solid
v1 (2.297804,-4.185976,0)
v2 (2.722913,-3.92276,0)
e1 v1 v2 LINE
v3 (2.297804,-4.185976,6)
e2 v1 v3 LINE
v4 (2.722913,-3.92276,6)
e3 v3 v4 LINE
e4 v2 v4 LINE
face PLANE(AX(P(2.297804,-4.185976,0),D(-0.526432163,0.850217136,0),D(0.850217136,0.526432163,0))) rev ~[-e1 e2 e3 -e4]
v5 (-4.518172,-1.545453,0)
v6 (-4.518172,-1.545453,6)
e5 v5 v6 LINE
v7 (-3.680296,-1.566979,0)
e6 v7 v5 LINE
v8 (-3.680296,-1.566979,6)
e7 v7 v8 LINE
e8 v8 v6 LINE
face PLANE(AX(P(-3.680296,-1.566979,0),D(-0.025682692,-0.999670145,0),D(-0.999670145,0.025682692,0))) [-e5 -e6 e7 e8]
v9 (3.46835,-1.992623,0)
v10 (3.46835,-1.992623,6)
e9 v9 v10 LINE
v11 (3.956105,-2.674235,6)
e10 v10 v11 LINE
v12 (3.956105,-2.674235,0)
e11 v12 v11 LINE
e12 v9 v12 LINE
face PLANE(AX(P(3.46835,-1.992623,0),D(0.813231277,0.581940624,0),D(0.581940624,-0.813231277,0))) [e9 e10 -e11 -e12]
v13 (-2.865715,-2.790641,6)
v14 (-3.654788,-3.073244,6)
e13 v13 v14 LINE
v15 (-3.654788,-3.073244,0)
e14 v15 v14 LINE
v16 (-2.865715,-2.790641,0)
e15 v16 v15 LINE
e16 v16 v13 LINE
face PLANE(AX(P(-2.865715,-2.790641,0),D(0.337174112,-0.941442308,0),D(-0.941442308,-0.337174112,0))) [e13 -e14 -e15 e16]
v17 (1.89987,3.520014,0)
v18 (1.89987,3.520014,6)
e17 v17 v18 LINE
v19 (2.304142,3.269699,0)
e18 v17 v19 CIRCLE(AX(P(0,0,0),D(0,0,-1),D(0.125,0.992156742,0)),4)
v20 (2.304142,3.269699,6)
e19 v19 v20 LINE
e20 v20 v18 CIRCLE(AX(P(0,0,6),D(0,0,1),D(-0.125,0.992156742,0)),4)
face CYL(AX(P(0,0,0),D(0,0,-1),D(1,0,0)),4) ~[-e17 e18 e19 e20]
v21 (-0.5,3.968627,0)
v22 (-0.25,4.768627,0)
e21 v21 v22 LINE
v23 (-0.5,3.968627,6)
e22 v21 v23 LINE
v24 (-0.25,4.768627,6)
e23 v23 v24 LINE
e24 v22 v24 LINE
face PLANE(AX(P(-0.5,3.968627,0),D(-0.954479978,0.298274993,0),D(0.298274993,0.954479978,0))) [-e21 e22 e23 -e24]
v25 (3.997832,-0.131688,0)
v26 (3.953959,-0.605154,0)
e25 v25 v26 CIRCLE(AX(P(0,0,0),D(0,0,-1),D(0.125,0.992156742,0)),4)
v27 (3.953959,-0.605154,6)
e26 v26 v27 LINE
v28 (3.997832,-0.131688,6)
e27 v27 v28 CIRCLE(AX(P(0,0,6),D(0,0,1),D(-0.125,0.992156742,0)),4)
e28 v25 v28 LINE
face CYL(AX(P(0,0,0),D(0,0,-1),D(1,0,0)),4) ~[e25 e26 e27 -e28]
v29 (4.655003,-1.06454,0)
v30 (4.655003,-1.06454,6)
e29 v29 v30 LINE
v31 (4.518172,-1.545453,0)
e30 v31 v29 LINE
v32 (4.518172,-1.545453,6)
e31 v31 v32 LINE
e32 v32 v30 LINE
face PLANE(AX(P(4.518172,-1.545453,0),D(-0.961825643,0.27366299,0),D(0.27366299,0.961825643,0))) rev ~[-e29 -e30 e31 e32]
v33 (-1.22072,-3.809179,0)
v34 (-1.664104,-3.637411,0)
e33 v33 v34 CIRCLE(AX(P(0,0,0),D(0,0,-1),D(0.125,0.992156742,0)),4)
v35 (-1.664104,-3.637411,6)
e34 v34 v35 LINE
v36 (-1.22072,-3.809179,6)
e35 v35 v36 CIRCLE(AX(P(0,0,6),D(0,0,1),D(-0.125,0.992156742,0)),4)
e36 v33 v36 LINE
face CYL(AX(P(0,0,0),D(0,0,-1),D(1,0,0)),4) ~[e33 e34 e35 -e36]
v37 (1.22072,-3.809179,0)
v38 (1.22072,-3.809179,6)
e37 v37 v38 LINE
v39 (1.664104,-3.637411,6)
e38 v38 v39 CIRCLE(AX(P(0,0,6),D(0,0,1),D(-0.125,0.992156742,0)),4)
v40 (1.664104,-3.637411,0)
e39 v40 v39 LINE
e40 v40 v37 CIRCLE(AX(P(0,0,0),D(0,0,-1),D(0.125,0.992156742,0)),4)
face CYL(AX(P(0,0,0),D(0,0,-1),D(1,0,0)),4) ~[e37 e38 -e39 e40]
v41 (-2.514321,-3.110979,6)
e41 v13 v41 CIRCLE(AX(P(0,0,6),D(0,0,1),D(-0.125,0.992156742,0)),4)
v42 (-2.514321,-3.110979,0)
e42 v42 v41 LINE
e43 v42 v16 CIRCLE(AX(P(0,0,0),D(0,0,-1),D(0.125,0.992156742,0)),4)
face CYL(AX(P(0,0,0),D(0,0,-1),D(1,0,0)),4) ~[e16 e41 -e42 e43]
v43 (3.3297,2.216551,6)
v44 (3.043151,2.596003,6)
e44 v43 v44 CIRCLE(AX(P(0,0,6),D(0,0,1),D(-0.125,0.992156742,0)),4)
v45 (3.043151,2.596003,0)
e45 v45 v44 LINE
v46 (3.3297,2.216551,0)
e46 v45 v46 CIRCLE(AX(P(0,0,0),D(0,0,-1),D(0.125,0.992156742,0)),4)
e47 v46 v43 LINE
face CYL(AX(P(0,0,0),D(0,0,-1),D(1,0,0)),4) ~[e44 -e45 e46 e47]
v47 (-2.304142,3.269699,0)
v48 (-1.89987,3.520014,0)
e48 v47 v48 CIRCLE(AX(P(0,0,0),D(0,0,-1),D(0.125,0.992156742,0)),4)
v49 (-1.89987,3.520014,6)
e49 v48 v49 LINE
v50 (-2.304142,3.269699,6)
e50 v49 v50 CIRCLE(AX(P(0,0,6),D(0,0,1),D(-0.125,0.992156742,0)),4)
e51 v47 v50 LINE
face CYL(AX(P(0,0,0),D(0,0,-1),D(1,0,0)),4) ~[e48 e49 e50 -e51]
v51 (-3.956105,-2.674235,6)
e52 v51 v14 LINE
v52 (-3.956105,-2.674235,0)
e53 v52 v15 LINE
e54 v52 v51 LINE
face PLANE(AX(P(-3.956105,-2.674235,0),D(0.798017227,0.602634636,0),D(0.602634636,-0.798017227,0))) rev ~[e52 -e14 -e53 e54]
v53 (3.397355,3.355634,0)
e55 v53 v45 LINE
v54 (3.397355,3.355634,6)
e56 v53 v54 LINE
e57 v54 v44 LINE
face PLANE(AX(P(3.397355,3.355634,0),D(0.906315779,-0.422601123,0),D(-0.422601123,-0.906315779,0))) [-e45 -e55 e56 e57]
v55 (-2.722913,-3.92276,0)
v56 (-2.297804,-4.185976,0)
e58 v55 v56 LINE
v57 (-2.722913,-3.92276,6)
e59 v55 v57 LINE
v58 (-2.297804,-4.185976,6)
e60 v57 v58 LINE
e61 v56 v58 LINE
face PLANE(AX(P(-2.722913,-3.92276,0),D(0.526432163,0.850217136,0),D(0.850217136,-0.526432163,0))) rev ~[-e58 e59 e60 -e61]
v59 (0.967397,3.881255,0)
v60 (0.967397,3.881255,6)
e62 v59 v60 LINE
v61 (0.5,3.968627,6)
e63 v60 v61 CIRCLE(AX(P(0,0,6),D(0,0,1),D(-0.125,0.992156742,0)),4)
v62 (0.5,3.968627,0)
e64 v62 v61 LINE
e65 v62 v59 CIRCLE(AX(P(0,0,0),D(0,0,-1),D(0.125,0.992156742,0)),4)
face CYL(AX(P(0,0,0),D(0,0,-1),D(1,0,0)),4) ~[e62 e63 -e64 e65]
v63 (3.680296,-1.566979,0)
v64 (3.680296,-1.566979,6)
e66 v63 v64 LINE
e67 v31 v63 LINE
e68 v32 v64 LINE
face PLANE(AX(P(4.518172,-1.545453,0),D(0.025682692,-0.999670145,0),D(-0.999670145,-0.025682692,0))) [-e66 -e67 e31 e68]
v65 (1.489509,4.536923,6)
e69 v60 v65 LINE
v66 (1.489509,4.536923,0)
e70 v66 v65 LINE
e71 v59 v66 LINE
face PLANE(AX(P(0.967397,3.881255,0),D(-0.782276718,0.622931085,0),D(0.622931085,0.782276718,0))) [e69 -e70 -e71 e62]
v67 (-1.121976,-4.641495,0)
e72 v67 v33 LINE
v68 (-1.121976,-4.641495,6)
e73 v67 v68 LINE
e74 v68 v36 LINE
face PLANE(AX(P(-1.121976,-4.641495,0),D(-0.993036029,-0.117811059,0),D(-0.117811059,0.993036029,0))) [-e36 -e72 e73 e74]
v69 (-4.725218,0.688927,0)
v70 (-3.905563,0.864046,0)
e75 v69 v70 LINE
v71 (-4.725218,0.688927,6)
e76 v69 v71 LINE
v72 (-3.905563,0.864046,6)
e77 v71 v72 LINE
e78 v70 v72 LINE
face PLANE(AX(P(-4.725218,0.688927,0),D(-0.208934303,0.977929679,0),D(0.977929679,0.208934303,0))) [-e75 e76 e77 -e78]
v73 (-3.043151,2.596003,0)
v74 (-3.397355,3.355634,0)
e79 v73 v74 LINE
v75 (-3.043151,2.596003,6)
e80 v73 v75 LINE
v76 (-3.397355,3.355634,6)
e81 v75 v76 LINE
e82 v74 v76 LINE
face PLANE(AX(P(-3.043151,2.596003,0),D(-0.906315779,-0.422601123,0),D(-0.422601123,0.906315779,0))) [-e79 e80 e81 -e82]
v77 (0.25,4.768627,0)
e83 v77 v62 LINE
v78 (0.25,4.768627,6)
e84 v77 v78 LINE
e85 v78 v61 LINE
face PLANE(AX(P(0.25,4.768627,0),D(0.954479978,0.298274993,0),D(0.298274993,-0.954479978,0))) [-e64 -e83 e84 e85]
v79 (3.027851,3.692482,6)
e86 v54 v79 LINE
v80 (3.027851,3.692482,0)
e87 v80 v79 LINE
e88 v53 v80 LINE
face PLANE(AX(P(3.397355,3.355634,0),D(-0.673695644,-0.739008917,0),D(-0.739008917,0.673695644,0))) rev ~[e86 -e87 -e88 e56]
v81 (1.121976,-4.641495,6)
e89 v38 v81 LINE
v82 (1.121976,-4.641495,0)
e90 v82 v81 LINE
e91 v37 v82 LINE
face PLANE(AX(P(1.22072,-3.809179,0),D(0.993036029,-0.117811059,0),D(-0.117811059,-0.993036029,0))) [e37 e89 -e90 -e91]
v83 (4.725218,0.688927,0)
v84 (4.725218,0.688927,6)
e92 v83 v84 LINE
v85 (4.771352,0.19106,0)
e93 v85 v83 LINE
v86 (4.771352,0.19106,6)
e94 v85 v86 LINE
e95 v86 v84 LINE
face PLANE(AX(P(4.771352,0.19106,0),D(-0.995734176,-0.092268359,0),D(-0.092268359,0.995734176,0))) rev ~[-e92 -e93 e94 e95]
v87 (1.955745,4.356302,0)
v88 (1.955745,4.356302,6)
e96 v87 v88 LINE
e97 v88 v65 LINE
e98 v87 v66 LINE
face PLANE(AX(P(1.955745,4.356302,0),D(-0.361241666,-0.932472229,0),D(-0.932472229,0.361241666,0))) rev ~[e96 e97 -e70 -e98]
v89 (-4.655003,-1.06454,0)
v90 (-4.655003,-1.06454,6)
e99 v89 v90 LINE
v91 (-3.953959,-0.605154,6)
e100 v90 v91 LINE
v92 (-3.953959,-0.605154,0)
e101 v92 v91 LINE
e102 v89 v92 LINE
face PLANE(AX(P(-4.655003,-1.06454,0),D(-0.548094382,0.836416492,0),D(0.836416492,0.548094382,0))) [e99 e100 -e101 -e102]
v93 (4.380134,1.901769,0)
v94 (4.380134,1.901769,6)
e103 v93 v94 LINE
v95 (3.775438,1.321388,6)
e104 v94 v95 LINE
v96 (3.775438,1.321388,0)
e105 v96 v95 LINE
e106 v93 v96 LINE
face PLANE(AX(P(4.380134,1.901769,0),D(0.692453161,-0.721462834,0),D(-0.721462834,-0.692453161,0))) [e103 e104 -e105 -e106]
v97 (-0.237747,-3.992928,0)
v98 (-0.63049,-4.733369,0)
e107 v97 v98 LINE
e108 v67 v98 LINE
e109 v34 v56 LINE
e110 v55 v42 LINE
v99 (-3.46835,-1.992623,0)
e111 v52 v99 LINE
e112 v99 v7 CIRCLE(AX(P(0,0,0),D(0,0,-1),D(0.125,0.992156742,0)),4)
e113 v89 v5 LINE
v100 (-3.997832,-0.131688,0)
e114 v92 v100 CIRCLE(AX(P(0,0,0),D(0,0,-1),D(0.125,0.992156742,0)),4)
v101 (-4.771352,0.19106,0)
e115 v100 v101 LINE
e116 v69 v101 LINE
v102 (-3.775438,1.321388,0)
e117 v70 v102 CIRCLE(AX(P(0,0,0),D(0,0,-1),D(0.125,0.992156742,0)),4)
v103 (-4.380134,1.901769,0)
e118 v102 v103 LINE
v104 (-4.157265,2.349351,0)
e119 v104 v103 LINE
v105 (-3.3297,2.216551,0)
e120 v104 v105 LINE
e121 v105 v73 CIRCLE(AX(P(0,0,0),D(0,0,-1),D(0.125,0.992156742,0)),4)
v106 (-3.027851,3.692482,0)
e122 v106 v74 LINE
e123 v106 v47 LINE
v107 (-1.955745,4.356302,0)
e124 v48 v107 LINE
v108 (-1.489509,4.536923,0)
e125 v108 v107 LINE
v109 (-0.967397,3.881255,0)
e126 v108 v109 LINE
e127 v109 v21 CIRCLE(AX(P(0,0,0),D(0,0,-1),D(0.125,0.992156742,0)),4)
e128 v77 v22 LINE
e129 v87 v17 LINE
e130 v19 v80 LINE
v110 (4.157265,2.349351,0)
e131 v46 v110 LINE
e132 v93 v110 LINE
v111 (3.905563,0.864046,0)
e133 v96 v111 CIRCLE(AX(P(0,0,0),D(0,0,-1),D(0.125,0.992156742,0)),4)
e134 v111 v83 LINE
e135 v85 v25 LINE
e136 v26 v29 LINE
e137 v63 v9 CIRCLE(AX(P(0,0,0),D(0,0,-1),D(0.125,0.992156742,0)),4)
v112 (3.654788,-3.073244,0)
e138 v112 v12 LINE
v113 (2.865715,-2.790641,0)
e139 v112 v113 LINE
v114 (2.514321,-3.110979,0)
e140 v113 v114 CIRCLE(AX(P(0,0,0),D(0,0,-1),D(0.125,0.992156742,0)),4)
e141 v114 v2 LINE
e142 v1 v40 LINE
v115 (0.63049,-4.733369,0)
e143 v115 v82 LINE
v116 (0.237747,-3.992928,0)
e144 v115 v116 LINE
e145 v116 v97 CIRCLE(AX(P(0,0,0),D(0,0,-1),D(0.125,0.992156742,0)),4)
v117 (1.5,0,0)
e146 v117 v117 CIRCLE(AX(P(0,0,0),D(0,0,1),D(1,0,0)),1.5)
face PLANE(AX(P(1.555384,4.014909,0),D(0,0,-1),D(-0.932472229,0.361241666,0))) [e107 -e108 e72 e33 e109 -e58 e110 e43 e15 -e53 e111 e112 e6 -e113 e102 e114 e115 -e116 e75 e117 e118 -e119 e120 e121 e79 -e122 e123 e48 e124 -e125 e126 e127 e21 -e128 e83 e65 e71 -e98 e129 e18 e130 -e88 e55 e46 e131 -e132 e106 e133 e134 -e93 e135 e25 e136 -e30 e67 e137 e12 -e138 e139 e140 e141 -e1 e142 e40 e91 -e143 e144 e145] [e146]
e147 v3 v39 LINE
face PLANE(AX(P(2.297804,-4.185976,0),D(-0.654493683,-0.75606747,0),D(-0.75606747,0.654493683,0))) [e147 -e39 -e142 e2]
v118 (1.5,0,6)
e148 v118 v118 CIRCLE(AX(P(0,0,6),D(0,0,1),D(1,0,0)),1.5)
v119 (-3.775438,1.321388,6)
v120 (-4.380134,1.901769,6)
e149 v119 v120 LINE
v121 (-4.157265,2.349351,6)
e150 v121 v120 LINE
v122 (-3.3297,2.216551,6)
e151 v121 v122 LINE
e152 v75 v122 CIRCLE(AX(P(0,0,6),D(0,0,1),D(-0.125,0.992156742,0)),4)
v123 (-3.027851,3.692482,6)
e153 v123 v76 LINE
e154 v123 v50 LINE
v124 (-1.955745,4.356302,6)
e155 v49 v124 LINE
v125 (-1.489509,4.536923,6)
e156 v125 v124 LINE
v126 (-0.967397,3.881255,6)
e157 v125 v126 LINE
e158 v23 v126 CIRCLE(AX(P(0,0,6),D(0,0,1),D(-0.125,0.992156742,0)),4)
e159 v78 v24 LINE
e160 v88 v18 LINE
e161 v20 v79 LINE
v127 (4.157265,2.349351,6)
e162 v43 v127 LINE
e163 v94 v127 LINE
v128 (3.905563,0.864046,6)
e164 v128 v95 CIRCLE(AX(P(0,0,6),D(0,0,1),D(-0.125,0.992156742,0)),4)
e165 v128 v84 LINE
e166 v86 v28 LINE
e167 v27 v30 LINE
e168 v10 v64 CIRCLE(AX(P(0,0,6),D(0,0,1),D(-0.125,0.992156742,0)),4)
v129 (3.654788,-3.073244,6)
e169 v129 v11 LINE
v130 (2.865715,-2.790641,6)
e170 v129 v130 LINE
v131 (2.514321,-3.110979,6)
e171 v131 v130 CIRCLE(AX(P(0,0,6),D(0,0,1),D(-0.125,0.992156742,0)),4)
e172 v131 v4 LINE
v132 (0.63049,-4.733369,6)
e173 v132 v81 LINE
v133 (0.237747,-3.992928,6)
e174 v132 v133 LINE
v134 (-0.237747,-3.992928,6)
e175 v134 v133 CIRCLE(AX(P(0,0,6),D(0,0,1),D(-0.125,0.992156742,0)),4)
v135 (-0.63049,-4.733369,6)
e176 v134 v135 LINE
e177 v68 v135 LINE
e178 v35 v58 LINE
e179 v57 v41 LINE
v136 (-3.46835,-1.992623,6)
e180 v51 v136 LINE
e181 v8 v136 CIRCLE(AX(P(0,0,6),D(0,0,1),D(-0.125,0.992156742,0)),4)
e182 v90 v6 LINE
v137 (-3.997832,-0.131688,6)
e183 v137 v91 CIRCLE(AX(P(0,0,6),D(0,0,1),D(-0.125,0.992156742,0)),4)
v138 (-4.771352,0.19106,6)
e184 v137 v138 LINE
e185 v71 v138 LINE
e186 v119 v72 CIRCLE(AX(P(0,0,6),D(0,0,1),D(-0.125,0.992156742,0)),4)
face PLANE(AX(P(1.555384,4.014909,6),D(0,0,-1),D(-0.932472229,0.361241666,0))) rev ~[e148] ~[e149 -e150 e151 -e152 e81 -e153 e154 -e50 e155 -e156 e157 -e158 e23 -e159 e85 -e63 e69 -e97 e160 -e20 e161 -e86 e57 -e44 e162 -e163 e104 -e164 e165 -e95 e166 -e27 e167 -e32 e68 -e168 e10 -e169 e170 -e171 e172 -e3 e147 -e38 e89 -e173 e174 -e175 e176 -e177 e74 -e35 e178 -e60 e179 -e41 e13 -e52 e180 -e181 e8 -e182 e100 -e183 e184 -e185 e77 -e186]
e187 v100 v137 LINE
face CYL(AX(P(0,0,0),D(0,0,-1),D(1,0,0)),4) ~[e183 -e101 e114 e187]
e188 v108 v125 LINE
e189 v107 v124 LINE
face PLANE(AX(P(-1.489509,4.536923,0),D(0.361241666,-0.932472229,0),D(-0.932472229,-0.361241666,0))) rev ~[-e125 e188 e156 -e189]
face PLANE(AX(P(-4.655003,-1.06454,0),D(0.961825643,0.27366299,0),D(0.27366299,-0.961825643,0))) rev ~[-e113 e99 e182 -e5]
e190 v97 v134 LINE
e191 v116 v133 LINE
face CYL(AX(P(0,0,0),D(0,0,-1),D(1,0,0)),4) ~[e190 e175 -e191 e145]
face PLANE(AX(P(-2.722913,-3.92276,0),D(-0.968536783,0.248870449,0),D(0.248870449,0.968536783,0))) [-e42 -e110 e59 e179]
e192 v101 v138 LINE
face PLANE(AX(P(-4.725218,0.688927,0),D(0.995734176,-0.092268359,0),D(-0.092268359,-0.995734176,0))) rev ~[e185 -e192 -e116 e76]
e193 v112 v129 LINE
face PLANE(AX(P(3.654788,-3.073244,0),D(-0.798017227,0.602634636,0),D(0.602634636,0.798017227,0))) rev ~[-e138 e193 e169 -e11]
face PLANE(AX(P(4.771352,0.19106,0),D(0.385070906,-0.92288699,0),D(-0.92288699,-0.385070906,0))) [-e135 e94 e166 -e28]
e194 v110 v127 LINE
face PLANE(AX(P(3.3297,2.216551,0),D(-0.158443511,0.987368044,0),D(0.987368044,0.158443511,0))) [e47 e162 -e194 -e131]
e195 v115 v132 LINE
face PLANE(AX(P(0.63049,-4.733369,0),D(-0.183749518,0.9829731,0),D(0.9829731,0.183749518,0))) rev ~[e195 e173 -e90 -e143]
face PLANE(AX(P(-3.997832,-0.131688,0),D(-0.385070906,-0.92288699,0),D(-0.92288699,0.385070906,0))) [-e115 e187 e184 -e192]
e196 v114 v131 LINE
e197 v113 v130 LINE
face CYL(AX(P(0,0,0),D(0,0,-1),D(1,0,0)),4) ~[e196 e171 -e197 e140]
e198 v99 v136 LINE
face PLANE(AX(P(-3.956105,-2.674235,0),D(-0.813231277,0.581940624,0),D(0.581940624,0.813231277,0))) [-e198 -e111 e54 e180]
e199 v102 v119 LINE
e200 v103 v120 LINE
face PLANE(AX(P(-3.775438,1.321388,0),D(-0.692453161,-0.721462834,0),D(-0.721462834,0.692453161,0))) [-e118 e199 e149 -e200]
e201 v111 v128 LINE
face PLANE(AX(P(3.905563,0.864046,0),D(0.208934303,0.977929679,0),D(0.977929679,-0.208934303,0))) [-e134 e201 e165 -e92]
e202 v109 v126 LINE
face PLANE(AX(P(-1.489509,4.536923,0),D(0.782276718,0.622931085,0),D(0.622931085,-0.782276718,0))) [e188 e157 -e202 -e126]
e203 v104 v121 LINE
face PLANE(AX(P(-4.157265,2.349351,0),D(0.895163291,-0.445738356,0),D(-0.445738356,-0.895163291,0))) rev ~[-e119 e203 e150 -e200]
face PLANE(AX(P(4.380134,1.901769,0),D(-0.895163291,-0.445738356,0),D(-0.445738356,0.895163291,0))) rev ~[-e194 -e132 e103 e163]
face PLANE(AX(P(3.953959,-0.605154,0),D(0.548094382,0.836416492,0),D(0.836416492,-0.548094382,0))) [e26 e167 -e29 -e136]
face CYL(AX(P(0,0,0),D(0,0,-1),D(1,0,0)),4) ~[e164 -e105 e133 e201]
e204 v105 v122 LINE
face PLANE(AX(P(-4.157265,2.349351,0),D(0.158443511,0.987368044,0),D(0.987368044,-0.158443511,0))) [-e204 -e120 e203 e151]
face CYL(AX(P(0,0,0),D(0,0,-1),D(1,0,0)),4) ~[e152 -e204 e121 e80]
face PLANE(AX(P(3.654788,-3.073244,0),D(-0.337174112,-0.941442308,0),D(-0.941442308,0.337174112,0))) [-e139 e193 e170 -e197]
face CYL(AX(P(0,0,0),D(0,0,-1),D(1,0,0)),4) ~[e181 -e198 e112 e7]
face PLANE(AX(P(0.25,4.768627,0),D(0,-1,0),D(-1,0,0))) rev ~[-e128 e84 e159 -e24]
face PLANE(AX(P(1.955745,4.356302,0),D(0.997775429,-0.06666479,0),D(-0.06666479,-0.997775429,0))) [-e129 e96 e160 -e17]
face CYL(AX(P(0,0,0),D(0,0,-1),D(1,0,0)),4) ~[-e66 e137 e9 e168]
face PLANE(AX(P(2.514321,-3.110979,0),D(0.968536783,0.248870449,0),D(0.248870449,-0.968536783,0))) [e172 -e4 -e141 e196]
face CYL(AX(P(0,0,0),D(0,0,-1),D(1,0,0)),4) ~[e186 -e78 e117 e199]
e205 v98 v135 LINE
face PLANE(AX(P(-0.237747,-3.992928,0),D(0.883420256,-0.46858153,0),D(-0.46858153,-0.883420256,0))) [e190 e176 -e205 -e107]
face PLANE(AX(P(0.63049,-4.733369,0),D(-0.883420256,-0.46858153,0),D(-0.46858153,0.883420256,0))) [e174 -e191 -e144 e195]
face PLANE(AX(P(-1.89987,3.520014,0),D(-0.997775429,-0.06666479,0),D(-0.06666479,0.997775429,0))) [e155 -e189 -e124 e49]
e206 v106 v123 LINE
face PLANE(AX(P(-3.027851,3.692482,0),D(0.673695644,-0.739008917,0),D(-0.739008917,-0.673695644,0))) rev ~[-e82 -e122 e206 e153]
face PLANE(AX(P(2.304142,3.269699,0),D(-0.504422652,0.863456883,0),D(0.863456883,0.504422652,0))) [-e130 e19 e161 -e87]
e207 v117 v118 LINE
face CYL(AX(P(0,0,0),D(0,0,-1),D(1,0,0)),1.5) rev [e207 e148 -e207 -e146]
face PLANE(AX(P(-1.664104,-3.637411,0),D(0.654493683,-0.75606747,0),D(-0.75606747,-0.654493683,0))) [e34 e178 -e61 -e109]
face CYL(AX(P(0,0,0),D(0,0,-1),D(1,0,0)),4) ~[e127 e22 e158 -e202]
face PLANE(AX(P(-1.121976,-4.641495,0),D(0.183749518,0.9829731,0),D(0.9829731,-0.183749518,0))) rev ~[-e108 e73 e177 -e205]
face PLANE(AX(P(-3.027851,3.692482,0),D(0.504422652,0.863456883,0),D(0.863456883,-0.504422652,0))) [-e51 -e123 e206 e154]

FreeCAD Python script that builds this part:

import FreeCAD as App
import Part
import Sketcher

V = App.Vector
Q = App.Units.Quantity


def add_polygon(sketch, points):
    """Adds a closed chain of lines whose ends are joined by coincident constraints."""
    first, n = sketch.GeometryCount, len(points)
    for a, b in zip(points, points[1:] + points[:1]):
        sketch.addGeometry(Part.LineSegment(App.Vector(*a, 0), App.Vector(*b, 0)), False)
    for i in range(n):
        sketch.addConstraint(Sketcher.Constraint("Coincident", first + i, 2, first + (i + 1) % n, 1))

doc = App.newDocument("Part")
body = doc.addObject("PartDesign::Body", "Body")

sketch1 = body.newObject("Sketcher::SketchObject", "Sketch")
sketch1.AttachmentSupport = (doc.getObject("XY_Plane"), [""])
sketch1.MapMode = "FlatFace"
sketch1.addGeometry(Part.Circle(V(0, 0, 0), V(0, 0, 1), 4), False)
sketch1.addConstraint([
    Sketcher.Constraint("Coincident", 0, 3, -1, 1),
    Sketcher.Constraint("Diameter", 0, Q("8 mm")),
])
pad1 = body.newObject("PartDesign::Pad", "Pad")
pad1.Profile = sketch1
pad1.Length = 6

sketch2 = body.newObject("Sketcher::SketchObject", "Sketch001")
sketch2.AttachmentSupport = (doc.getObject("XY_Plane"), [""])
sketch2.MapMode = "FlatFace"
add_polygon(sketch2, [(0.25, 4.768627), (-0.25, 4.768627), (-0.5, 3.968627), (0.5, 3.968627)])
sketch2.addConstraint([
    Sketcher.Constraint("Horizontal", 0),
    Sketcher.Constraint("Horizontal", 2),
    Sketcher.Constraint("Equal", 1, 3),
    Sketcher.Constraint("DistanceX", 2, 1, 2, 2, Q("1 mm")),
    Sketcher.Constraint("DistanceX", 0, 2, 0, 1, Q("0.5 mm")),
    Sketcher.Constraint("DistanceX", 1, 2, -1, 1, Q("0.5 mm")),
    Sketcher.Constraint("DistanceY", 1, 2, 0, 2, Q("0.8 mm")),
    Sketcher.Constraint("DistanceY", -1, 1, 0, 2, Q("4.768627 mm")),
])
pad2 = body.newObject("PartDesign::Pad", "Pad001")
pad2.Profile = sketch2
pad2.Length = 6
doc.recompute()

polarpattern = body.newObject("PartDesign::PolarPattern", "PolarPattern")
polarpattern.Originals = [pad2]
polarpattern.Axis = (doc.getObject("Z_Axis"), [""])
polarpattern.Angle = 360
polarpattern.Occurrences = 17
body.Tip = polarpattern

sketch3 = body.newObject("Sketcher::SketchObject", "Sketch002")
sketch3.AttachmentSupport = (doc.getObject("XY_Plane"), [""])
sketch3.MapMode = "FlatFace"
sketch3.addGeometry(Part.Circle(V(0, 0, 0), V(0, 0, 1), 1.5), False)
sketch3.addConstraint([
    Sketcher.Constraint("Coincident", 0, 3, -1, 1),
    Sketcher.Constraint("Diameter", 0, Q("3 mm")),
])
pocket1 = body.newObject("PartDesign::Pocket", "Pocket")
pocket1.Profile = sketch3
pocket1.Length = 6
pocket1.Reversed = True

doc.recompute()
